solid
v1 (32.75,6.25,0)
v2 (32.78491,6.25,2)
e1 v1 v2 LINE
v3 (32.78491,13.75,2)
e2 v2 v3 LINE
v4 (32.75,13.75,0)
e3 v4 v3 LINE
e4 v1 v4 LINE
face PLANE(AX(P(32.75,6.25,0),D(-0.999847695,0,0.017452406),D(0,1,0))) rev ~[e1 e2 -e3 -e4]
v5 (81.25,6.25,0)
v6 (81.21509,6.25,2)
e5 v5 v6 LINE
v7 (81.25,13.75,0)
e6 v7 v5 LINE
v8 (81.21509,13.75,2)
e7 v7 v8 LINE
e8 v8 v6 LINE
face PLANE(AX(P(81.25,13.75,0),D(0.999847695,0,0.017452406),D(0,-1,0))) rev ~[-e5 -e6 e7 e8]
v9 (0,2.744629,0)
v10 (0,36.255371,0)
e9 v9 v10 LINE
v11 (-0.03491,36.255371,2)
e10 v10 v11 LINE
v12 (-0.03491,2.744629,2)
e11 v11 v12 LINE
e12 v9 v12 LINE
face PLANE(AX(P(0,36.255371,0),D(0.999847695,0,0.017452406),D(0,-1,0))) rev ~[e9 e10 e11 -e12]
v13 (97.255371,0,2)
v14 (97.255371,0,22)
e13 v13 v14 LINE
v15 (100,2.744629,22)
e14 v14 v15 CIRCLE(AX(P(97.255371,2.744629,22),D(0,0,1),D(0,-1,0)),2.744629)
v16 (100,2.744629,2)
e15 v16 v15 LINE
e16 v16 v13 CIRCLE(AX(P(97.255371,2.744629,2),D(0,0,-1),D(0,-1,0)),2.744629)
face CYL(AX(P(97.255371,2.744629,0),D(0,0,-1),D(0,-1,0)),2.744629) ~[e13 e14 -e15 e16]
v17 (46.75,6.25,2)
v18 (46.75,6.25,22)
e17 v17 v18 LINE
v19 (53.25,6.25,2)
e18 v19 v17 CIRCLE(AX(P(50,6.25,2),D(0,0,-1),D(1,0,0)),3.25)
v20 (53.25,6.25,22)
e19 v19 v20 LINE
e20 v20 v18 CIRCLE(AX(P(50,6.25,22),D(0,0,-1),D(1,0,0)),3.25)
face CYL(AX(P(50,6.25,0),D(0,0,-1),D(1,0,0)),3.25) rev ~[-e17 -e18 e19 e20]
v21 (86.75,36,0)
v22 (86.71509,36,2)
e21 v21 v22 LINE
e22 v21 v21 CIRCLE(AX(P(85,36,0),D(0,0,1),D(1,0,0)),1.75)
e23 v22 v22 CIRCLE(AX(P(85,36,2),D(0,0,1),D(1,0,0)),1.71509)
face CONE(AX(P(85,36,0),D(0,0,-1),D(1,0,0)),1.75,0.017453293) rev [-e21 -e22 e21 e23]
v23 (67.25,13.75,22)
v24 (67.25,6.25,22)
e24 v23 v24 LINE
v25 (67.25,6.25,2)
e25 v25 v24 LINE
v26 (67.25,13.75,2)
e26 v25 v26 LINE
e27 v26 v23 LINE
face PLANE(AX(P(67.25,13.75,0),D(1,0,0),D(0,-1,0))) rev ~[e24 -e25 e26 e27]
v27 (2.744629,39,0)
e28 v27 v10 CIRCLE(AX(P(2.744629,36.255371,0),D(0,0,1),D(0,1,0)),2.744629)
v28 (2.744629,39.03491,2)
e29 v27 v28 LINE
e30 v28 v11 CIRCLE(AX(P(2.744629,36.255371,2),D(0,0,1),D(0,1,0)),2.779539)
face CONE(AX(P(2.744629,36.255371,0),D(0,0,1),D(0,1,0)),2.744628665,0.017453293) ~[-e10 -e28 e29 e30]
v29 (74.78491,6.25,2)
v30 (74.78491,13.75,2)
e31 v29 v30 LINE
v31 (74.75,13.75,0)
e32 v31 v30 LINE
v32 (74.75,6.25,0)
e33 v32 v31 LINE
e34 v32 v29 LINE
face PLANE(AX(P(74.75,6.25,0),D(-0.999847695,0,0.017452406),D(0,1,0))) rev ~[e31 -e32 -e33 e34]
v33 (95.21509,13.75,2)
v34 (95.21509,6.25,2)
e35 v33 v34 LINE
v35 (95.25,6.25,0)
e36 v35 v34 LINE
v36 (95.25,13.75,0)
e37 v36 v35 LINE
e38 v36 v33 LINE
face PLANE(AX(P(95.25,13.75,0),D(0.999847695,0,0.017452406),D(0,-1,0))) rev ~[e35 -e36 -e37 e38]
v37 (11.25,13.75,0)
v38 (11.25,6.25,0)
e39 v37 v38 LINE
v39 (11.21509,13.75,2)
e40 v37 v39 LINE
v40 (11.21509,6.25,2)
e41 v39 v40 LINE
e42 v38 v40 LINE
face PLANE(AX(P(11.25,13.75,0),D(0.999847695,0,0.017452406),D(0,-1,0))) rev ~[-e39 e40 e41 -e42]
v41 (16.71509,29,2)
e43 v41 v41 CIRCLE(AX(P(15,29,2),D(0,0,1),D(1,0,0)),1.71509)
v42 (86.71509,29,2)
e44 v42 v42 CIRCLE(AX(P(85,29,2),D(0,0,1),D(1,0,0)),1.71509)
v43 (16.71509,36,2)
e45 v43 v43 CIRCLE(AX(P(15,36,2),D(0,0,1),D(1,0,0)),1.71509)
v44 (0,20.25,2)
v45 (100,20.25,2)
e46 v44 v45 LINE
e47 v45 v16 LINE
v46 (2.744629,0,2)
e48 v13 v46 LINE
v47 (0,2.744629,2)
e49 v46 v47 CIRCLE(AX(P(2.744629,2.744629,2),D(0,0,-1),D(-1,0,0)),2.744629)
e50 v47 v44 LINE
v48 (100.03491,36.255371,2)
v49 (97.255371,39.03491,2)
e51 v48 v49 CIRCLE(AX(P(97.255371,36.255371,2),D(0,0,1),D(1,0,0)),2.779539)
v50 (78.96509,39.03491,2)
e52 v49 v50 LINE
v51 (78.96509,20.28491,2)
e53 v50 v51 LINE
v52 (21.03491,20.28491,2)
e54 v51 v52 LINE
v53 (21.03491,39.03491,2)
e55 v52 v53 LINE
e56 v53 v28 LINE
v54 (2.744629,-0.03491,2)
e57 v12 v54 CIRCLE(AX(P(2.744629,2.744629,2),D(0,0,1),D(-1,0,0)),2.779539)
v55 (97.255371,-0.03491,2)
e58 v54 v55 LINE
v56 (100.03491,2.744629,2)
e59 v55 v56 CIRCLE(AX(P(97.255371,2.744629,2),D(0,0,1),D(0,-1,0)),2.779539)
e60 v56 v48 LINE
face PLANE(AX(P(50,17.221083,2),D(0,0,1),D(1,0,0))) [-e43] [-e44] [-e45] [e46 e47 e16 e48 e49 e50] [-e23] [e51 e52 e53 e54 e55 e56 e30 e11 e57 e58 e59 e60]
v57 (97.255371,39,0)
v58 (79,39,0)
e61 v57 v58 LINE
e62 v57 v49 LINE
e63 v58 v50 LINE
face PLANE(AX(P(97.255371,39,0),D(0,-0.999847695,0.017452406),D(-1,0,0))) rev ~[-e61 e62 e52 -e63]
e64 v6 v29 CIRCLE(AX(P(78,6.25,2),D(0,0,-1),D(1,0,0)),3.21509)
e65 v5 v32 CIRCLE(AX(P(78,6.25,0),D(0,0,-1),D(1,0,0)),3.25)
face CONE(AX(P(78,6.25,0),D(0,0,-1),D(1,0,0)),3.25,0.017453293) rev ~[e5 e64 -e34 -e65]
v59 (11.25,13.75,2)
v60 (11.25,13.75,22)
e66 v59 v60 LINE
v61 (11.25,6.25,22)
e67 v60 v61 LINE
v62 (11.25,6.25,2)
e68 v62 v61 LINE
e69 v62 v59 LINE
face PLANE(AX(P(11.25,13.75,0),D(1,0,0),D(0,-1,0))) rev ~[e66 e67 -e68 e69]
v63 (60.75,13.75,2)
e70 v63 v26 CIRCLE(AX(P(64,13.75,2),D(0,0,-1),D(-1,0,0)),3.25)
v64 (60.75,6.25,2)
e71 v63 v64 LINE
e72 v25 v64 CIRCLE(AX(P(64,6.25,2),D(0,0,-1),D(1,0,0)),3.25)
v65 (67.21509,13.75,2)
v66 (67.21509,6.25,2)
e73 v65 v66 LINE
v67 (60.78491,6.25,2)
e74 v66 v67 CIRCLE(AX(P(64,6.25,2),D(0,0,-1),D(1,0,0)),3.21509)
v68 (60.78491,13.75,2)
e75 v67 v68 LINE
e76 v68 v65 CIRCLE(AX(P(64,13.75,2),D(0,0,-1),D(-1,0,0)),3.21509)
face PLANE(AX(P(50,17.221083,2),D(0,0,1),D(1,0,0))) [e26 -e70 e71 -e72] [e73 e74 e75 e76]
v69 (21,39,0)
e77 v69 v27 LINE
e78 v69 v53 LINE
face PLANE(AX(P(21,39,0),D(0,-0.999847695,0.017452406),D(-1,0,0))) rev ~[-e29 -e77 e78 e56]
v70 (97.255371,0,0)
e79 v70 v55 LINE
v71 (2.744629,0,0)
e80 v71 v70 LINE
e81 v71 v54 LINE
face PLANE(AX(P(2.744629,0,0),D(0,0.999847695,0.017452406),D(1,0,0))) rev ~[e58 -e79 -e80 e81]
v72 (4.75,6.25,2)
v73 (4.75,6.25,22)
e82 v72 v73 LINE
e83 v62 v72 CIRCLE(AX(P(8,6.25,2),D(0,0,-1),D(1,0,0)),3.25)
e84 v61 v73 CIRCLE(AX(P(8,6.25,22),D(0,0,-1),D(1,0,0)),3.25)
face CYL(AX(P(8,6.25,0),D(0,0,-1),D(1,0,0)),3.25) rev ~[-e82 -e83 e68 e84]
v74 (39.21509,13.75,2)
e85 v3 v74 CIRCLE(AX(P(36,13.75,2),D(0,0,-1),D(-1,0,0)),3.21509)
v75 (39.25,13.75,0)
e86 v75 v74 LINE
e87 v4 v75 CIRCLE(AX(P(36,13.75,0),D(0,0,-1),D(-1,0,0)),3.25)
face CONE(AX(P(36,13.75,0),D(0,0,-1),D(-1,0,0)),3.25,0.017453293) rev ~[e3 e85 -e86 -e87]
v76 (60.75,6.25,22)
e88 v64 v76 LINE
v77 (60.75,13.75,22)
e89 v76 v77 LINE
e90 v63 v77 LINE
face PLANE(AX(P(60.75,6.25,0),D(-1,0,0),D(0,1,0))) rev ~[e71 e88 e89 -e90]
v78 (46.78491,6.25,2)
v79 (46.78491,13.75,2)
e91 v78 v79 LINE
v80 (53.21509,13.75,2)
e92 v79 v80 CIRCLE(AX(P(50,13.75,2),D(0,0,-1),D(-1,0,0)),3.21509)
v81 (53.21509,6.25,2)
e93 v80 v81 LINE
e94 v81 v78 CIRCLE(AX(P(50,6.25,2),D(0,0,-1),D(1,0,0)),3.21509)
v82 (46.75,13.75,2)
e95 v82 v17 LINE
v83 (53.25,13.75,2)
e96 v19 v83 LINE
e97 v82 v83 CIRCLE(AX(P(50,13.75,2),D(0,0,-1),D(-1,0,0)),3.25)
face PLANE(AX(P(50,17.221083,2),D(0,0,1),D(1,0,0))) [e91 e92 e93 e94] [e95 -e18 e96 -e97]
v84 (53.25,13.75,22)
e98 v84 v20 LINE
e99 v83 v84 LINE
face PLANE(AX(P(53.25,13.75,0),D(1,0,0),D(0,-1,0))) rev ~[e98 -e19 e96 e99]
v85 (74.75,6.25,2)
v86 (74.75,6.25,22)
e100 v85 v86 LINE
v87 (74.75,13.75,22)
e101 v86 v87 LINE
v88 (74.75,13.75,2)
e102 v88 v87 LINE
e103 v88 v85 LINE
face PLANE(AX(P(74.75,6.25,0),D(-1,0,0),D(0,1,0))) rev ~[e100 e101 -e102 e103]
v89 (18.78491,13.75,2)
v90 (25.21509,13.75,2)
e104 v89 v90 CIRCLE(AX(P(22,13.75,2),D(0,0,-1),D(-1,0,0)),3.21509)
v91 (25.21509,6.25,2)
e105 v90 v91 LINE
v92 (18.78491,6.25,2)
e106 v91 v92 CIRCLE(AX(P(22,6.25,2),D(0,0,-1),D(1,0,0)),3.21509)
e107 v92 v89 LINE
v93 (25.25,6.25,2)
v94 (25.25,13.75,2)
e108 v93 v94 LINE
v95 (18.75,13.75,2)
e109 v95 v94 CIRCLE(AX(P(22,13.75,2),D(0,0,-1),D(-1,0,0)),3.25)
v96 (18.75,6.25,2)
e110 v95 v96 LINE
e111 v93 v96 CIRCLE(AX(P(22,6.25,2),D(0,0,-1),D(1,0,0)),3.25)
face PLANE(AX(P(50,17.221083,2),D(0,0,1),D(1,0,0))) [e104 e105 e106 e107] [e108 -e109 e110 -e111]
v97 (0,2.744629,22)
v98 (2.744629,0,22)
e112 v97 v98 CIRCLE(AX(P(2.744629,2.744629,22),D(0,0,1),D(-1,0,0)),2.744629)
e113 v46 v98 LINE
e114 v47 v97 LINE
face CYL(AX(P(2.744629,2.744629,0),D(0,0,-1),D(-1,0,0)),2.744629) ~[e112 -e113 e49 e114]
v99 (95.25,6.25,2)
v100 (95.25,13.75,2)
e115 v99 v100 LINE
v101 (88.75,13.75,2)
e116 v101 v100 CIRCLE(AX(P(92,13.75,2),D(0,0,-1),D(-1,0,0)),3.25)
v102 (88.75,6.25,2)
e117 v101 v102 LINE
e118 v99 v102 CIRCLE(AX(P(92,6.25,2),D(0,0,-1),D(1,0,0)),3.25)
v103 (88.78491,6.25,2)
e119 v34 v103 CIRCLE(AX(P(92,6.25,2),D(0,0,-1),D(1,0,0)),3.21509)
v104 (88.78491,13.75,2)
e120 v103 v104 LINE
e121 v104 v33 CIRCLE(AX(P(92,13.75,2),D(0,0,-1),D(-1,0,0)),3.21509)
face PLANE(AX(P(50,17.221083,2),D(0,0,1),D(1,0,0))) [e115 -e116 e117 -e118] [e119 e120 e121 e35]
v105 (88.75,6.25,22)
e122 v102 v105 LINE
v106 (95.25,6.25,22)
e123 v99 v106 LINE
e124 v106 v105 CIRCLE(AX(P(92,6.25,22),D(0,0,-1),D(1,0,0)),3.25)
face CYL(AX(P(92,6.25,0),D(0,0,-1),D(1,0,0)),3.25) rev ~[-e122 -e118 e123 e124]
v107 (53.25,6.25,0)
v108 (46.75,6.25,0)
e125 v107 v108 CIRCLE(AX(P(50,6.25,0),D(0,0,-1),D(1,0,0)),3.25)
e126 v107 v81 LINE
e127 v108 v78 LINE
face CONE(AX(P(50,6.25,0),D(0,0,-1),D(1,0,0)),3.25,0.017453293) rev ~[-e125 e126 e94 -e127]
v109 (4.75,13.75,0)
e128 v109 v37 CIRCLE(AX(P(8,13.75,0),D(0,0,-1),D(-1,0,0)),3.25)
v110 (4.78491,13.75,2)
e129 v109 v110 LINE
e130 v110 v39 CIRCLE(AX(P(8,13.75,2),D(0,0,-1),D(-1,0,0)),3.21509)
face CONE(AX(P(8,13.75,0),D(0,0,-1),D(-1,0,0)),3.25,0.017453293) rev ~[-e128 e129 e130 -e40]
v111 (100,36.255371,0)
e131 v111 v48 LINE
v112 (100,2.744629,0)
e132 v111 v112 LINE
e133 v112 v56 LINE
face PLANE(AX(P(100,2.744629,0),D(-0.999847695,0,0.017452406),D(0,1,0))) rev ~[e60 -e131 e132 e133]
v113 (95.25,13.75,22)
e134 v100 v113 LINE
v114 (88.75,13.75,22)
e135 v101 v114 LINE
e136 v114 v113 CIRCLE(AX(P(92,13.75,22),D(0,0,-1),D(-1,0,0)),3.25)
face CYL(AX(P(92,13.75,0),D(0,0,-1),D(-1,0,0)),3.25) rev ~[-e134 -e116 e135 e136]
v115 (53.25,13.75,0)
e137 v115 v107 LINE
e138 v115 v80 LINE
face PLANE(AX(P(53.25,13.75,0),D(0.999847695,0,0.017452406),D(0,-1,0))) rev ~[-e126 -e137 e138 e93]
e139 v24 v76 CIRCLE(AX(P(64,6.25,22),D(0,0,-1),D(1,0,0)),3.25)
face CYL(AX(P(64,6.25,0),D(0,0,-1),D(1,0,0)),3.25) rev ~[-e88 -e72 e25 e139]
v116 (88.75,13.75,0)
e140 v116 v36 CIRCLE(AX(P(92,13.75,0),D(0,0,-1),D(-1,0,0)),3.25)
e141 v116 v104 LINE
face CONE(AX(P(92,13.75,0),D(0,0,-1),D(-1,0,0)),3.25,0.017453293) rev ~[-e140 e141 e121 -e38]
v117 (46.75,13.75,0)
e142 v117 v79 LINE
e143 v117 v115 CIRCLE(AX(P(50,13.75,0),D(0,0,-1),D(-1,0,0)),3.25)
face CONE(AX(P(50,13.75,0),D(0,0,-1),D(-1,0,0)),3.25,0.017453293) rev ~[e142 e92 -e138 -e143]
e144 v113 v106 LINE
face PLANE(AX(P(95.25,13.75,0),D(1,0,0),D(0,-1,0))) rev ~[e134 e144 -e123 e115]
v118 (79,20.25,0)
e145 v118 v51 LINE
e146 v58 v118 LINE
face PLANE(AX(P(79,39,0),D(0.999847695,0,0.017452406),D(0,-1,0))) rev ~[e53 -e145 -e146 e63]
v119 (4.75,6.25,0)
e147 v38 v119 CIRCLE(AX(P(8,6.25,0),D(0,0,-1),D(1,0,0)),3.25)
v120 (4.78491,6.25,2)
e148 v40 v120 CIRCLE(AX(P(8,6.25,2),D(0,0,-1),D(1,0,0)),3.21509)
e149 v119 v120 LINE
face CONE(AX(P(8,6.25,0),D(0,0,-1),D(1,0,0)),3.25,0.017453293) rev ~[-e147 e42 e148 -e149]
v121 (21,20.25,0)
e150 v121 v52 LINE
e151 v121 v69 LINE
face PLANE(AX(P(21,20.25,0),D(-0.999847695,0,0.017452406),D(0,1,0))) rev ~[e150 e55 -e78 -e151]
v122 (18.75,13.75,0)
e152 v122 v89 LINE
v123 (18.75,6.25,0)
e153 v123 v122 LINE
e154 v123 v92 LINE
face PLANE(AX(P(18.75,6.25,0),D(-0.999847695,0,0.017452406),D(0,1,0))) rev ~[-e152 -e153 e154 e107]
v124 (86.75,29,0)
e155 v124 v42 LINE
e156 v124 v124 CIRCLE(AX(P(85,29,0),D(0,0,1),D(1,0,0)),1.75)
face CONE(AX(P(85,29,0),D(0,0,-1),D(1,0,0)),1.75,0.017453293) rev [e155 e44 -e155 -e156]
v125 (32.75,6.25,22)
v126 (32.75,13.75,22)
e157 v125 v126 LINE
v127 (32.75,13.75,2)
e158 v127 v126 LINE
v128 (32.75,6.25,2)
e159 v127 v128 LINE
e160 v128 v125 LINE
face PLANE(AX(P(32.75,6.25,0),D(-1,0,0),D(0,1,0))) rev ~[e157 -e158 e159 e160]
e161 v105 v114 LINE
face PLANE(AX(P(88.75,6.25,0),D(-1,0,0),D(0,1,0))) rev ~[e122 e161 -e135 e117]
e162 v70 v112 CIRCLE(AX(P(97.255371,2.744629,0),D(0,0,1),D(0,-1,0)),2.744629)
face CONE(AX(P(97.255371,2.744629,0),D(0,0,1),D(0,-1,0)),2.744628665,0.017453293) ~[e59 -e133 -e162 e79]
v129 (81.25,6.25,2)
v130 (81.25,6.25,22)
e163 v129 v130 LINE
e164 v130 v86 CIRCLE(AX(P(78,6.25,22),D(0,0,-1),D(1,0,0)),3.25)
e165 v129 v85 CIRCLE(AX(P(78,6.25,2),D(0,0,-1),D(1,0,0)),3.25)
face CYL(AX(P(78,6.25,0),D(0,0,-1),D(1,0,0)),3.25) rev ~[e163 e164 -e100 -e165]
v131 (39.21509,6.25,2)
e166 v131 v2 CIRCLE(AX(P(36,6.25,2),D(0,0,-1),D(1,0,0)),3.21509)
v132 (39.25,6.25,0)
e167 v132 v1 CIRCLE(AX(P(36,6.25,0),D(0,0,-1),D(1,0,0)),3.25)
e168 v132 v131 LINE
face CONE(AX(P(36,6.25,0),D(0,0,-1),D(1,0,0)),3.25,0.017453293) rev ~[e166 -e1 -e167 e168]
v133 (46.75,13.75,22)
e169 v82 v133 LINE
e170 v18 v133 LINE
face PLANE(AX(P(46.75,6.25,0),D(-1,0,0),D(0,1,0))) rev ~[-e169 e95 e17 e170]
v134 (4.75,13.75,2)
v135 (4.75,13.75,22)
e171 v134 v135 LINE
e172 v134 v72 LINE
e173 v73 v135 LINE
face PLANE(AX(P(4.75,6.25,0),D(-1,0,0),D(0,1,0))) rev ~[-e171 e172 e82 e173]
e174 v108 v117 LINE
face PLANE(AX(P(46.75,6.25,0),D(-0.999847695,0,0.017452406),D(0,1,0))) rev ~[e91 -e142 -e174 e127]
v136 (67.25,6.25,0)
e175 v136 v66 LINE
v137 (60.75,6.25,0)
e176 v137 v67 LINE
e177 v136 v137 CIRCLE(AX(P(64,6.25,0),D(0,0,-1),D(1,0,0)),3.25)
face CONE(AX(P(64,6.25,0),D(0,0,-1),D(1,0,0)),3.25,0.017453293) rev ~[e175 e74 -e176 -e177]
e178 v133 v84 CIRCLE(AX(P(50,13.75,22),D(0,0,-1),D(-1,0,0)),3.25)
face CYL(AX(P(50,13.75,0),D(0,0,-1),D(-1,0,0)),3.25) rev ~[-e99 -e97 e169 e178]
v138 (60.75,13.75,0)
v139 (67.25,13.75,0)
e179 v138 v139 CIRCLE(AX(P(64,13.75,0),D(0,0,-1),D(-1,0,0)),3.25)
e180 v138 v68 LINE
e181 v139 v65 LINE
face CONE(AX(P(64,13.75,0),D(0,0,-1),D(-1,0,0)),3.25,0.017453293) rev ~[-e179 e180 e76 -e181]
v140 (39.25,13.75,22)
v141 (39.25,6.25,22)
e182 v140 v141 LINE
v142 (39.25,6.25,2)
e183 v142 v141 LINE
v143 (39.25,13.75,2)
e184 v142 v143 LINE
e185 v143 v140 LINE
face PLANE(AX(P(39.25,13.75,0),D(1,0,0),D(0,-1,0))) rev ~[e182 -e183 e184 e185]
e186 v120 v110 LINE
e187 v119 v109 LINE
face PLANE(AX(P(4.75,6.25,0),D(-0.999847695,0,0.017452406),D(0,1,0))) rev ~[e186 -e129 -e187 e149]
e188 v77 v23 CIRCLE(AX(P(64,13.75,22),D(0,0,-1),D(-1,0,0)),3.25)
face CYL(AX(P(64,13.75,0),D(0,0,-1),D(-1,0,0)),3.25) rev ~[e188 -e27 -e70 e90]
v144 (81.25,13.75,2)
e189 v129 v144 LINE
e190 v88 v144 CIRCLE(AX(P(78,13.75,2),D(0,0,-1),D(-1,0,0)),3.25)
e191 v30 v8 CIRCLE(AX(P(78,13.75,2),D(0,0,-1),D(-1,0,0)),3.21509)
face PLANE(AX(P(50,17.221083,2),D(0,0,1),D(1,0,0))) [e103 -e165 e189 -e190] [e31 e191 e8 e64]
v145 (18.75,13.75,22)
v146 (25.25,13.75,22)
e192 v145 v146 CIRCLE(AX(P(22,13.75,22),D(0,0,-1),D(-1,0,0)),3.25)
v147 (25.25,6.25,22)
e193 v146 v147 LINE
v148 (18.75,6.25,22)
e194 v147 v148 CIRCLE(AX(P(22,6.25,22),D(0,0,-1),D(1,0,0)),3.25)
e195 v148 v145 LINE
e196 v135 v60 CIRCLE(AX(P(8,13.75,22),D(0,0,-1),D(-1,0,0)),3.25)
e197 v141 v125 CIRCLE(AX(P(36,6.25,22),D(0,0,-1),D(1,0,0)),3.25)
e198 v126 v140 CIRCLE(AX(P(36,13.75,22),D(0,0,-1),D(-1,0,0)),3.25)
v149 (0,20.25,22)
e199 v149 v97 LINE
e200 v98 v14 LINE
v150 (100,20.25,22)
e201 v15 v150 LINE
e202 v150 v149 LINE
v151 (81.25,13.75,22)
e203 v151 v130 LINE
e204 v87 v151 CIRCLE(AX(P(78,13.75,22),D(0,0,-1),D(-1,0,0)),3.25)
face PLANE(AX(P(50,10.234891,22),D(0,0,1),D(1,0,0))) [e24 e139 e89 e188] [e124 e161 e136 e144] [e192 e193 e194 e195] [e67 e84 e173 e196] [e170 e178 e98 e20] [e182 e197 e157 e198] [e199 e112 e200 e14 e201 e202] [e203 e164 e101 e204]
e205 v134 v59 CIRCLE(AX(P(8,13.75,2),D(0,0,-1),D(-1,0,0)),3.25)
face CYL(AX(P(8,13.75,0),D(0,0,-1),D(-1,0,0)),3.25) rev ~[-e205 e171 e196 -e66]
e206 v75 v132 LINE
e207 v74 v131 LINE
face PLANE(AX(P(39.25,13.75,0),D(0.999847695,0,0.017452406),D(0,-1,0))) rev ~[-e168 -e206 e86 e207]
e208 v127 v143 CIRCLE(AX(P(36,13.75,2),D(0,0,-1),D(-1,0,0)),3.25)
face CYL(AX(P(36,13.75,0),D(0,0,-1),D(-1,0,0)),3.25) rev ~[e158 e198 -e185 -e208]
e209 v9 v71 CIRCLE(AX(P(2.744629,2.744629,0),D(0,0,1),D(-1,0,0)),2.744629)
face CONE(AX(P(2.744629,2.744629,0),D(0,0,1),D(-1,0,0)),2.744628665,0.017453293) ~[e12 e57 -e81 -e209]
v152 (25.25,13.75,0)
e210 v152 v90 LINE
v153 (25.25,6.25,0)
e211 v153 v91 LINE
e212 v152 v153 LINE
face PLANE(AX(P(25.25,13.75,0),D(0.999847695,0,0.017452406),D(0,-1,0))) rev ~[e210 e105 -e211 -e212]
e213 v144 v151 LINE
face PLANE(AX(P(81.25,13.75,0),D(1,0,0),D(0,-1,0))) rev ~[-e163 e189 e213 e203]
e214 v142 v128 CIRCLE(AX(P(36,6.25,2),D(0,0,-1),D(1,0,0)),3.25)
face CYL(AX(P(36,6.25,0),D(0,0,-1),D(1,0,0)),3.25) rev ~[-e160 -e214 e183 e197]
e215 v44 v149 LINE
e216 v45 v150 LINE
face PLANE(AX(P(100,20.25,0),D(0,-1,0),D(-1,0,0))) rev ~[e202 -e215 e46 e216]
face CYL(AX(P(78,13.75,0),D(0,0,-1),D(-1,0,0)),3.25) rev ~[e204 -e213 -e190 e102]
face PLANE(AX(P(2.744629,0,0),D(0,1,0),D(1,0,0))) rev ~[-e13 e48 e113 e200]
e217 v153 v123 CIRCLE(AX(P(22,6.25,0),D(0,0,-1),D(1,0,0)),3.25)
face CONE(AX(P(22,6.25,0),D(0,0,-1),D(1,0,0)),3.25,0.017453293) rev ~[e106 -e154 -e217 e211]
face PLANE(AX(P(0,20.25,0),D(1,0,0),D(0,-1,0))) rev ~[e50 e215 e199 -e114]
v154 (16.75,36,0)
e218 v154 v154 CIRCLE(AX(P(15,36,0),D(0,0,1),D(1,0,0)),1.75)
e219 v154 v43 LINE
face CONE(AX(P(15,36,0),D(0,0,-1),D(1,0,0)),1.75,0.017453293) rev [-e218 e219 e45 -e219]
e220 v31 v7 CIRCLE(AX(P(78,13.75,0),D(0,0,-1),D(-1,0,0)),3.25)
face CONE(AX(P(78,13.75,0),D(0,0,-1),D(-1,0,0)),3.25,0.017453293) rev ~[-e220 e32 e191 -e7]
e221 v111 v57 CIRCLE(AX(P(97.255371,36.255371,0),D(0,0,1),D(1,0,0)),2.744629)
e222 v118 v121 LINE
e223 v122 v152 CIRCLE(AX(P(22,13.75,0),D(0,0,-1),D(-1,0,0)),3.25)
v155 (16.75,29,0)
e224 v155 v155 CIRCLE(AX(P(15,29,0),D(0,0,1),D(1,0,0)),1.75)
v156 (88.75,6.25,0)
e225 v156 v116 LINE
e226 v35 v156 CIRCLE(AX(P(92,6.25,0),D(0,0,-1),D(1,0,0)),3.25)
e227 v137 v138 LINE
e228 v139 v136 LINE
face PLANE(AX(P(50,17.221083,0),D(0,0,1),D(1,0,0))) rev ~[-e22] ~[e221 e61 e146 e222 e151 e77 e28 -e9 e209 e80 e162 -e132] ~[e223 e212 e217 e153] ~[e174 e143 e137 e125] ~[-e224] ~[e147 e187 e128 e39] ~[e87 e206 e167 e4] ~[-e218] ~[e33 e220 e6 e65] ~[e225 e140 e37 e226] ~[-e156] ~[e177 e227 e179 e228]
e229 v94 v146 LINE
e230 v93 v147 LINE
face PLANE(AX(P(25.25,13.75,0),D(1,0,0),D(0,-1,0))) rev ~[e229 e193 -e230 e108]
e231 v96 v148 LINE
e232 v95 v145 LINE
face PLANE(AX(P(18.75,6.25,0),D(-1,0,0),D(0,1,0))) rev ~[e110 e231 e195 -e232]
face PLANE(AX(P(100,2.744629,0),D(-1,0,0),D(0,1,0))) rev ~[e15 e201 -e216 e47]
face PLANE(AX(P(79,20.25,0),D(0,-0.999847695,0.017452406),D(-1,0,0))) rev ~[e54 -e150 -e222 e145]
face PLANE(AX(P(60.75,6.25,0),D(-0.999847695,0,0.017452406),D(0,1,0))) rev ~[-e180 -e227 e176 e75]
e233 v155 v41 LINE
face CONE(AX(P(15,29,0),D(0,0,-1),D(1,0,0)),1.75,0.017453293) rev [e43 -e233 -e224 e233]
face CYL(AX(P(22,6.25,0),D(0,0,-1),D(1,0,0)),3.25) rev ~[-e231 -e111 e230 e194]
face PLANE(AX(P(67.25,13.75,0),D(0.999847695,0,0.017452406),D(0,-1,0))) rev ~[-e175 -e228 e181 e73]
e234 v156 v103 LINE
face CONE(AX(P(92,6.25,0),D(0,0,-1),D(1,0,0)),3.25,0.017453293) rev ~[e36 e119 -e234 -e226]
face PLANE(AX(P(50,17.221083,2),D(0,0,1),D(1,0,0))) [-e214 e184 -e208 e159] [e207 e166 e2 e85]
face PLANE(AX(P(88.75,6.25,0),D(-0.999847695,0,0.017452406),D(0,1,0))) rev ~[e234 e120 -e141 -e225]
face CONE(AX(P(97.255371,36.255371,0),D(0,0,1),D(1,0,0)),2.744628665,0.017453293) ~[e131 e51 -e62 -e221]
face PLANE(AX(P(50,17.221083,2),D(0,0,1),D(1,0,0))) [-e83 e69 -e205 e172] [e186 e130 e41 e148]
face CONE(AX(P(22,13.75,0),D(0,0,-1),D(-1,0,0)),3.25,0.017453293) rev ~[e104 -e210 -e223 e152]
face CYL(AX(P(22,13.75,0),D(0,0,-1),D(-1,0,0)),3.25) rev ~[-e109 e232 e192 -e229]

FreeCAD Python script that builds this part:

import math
import FreeCAD as App
import Part
import Sketcher
from FreeCAD import Vector
Q = App.Units.Quantity


def faces_at(feature, points):
    """Names of the faces that lie closest to the given points."""
    faces = feature.Shape.Faces
    near = lambda p: min(range(len(faces)), key=lambda i: faces[i].distToShape(Part.Vertex(*p))[0])
    return sorted({f"Face{near(p) + 1}" for p in points})

doc = App.newDocument("Part")
body = doc.addObject("PartDesign::Body", "Body")

# Sketch on XY plane
sketch1 = body.newObject("Sketcher::SketchObject", "Sketch")
sketch1.AttachmentSupport = (doc.getObject("XY_Plane"), [""])
sketch1.MapMode = "FlatFace"
sketch1.addGeometry([
    Part.ArcOfCircle(Part.Circle(Vector(2.7, 2.7, 0), Vector(0, 0, 1), 2.7), math.radians(180), math.radians(270)),  # 0
    Part.LineSegment(Vector(2.7, 0, 0), Vector(97.3, 0, 0)),  # 1
    Part.ArcOfCircle(Part.Circle(Vector(97.3, 2.7, 0), Vector(0, 0, 1), 2.7), math.radians(-90), math.radians(0)),  # 2
    Part.LineSegment(Vector(100, 2.7, 0), Vector(100, 36.3, 0)),  # 3
    Part.ArcOfCircle(Part.Circle(Vector(97.3, 36.3, 0), Vector(0, 0, 1), 2.7), math.radians(0), math.radians(90)),  # 4
    Part.LineSegment(Vector(97.3, 39, 0), Vector(79, 39, 0)),  # 5
    Part.LineSegment(Vector(79, 39, 0), Vector(79, 20.2, 0)),  # 6
    Part.LineSegment(Vector(79, 20.2, 0), Vector(21, 20.2, 0)),  # 7
    Part.LineSegment(Vector(21, 20.2, 0), Vector(21, 39, 0)),  # 8
    Part.LineSegment(Vector(21, 39, 0), Vector(2.7, 39, 0)),  # 9
    Part.ArcOfCircle(Part.Circle(Vector(2.7, 36.3, 0), Vector(0, 0, 1), 2.7), math.radians(90), math.radians(180)),  # 10
    Part.LineSegment(Vector(0, 36.3, 0), Vector(0, 2.7, 0)),  # 11
    Part.LineSegment(Vector(11.2, 13.8, 0), Vector(11.2, 6.2, 0)),  # 12
    Part.ArcOfCircle(Part.Circle(Vector(8, 6.2, 0), Vector(0, 0, 1), 3.2), math.radians(180), math.radians(360)),  # 13
    Part.LineSegment(Vector(4.8, 6.2, 0), Vector(4.8, 13.8, 0)),  # 14
    Part.ArcOfCircle(Part.Circle(Vector(8, 13.8, 0), Vector(0, 0, 1), 3.2), math.radians(0), math.radians(180)),  # 15
    Part.LineSegment(Vector(25.2, 13.8, 0), Vector(25.2, 6.2, 0)),  # 16
    Part.ArcOfCircle(Part.Circle(Vector(22, 6.2, 0), Vector(0, 0, 1), 3.2), math.radians(180), math.radians(360)),  # 17
    Part.LineSegment(Vector(18.8, 6.2, 0), Vector(18.8, 13.8, 0)),  # 18
    Part.ArcOfCircle(Part.Circle(Vector(22, 13.8, 0), Vector(0, 0, 1), 3.2), math.radians(0), math.radians(180)),  # 19
    Part.LineSegment(Vector(39.2, 13.8, 0), Vector(39.2, 6.2, 0)),  # 20
    Part.ArcOfCircle(Part.Circle(Vector(36, 6.2, 0), Vector(0, 0, 1), 3.2), math.radians(180), math.radians(360)),  # 21
    Part.LineSegment(Vector(32.8, 6.2, 0), Vector(32.8, 13.8, 0)),  # 22
    Part.ArcOfCircle(Part.Circle(Vector(36, 13.8, 0), Vector(0, 0, 1), 3.2), math.radians(0), math.radians(180)),  # 23
    Part.LineSegment(Vector(53.2, 13.8, 0), Vector(53.2, 6.2, 0)),  # 24
    Part.ArcOfCircle(Part.Circle(Vector(50, 6.2, 0), Vector(0, 0, 1), 3.2), math.radians(180), math.radians(360)),  # 25
    Part.LineSegment(Vector(46.8, 6.2, 0), Vector(46.8, 13.8, 0)),  # 26
    Part.ArcOfCircle(Part.Circle(Vector(50, 13.8, 0), Vector(0, 0, 1), 3.2), math.radians(0), math.radians(180)),  # 27
    Part.LineSegment(Vector(67.2, 13.8, 0), Vector(67.2, 6.2, 0)),  # 28
    Part.ArcOfCircle(Part.Circle(Vector(64, 6.2, 0), Vector(0, 0, 1), 3.2), math.radians(180), math.radians(360)),  # 29
    Part.LineSegment(Vector(60.8, 6.2, 0), Vector(60.8, 13.8, 0)),  # 30
    Part.ArcOfCircle(Part.Circle(Vector(64, 13.8, 0), Vector(0, 0, 1), 3.2), math.radians(0), math.radians(180)),  # 31
    Part.LineSegment(Vector(81.2, 13.8, 0), Vector(81.2, 6.2, 0)),  # 32
    Part.ArcOfCircle(Part.Circle(Vector(78, 6.2, 0), Vector(0, 0, 1), 3.2), math.radians(180), math.radians(360)),  # 33
    Part.LineSegment(Vector(74.8, 6.2, 0), Vector(74.8, 13.8, 0)),  # 34
    Part.ArcOfCircle(Part.Circle(Vector(78, 13.8, 0), Vector(0, 0, 1), 3.2), math.radians(0), math.radians(180)),  # 35
    Part.LineSegment(Vector(95.2, 13.8, 0), Vector(95.2, 6.2, 0)),  # 36
    Part.ArcOfCircle(Part.Circle(Vector(92, 6.2, 0), Vector(0, 0, 1), 3.2), math.radians(180), math.radians(360)),  # 37
    Part.LineSegment(Vector(88.8, 6.2, 0), Vector(88.8, 13.8, 0)),  # 38
    Part.ArcOfCircle(Part.Circle(Vector(92, 13.8, 0), Vector(0, 0, 1), 3.2), math.radians(0), math.radians(180)),  # 39
    Part.Circle(Vector(15, 29, 0), Vector(0, 0, 1), 1.8),  # 40
    Part.Circle(Vector(15, 36, 0), Vector(0, 0, 1), 1.8),  # 41
    Part.Circle(Vector(85, 29, 0), Vector(0, 0, 1), 1.8),  # 42
    Part.Circle(Vector(85, 36, 0), Vector(0, 0, 1), 1.8),  # 43
], False)
sketch1.addConstraint([
    Sketcher.Constraint("Tangent", 0, 2, 1, 1),
    Sketcher.Constraint("Tangent", 1, 2, 2, 1),
    Sketcher.Constraint("Tangent", 2, 2, 3, 1),
    Sketcher.Constraint("Tangent", 3, 2, 4, 1),
    Sketcher.Constraint("Tangent", 4, 2, 5, 1),
    Sketcher.Constraint("Coincident", 5, 2, 6, 1),
    Sketcher.Constraint("Coincident", 6, 2, 7, 1),
    Sketcher.Constraint("Coincident", 7, 2, 8, 1),
    Sketcher.Constraint("Coincident", 8, 2, 9, 1),
    Sketcher.Constraint("Tangent", 9, 2, 10, 1),
    Sketcher.Constraint("Tangent", 10, 2, 11, 1),
    Sketcher.Constraint("Tangent", 11, 2, 0, 1),
    Sketcher.Constraint("Tangent", 12, 2, 13, 2),
    Sketcher.Constraint("Tangent", 13, 1, 14, 1),
    Sketcher.Constraint("Tangent", 14, 2, 15, 2),
    Sketcher.Constraint("Tangent", 15, 1, 12, 1),
    Sketcher.Constraint("Tangent", 16, 2, 17, 2),
    Sketcher.Constraint("Tangent", 17, 1, 18, 1),
    Sketcher.Constraint("Tangent", 18, 2, 19, 2),
    Sketcher.Constraint("Tangent", 19, 1, 16, 1),
    Sketcher.Constraint("Tangent", 20, 2, 21, 2),
    Sketcher.Constraint("Tangent", 21, 1, 22, 1),
    Sketcher.Constraint("Tangent", 22, 2, 23, 2),
    Sketcher.Constraint("Tangent", 23, 1, 20, 1),
    Sketcher.Constraint("Tangent", 24, 2, 25, 2),
    Sketcher.Constraint("Tangent", 25, 1, 26, 1),
    Sketcher.Constraint("Tangent", 26, 2, 27, 2),
    Sketcher.Constraint("Tangent", 27, 1, 24, 1),
    Sketcher.Constraint("Tangent", 28, 2, 29, 2),
    Sketcher.Constraint("Tangent", 29, 1, 30, 1),
    Sketcher.Constraint("Tangent", 30, 2, 31, 2),
    Sketcher.Constraint("Tangent", 31, 1, 28, 1),
    Sketcher.Constraint("Tangent", 32, 2, 33, 2),
    Sketcher.Constraint("Tangent", 33, 1, 34, 1),
    Sketcher.Constraint("Tangent", 34, 2, 35, 2),
    Sketcher.Constraint("Tangent", 35, 1, 32, 1),
    Sketcher.Constraint("Tangent", 36, 2, 37, 2),
    Sketcher.Constraint("Tangent", 37, 1, 38, 1),
    Sketcher.Constraint("Tangent", 38, 2, 39, 2),
    Sketcher.Constraint("Tangent", 39, 1, 36, 1),
    Sketcher.Constraint("Horizontal", 1),
    Sketcher.Constraint("Vertical", 3),
    Sketcher.Constraint("Horizontal", 5),
    Sketcher.Constraint("Vertical", 6),
    Sketcher.Constraint("Horizontal", 7),
    Sketcher.Constraint("Vertical", 8),
    Sketcher.Constraint("Horizontal", 9),
    Sketcher.Constraint("Vertical", 11),
    Sketcher.Constraint("Vertical", 12),
    Sketcher.Constraint("Vertical", 14),
    Sketcher.Constraint("Vertical", 16),
    Sketcher.Constraint("Vertical", 18),
    Sketcher.Constraint("Vertical", 20),
    Sketcher.Constraint("Vertical", 22),
    Sketcher.Constraint("Vertical", 24),
    Sketcher.Constraint("Vertical", 26),
    Sketcher.Constraint("Vertical", 28),
    Sketcher.Constraint("Vertical", 30),
    Sketcher.Constraint("Vertical", 32),
    Sketcher.Constraint("Vertical", 34),
    Sketcher.Constraint("Vertical", 36),
    Sketcher.Constraint("Vertical", 38),
    Sketcher.Constraint("Equal", 0, 2),
    Sketcher.Constraint("Equal", 2, 4),
    Sketcher.Constraint("Equal", 4, 10),
    Sketcher.Constraint("Equal", 15, 17),
    Sketcher.Constraint("Equal", 19, 21),
    Sketcher.Constraint("Equal", 23, 25),
    Sketcher.Constraint("Equal", 27, 29),
    Sketcher.Constraint("Equal", 31, 33),
    Sketcher.Constraint("Equal", 35, 37),
    Sketcher.Constraint("Equal", 40, 41),
    Sketcher.Constraint("Equal", 41, 42),
    Sketcher.Constraint("Equal", 42, 43),
    Sketcher.Constraint("PointOnObject", 0, 2, -1),
    Sketcher.Constraint("PointOnObject", 10, 2, -2),
    Sketcher.Constraint("Horizontal", 4, 3, 10, 3),
    Sketcher.Constraint("Horizontal", 13, 3, 17, 3),
    Sketcher.Constraint("Horizontal", 15, 3, 19, 3),
    Sketcher.Constraint("Horizontal", 17, 3, 21, 3),
    Sketcher.Constraint("Horizontal", 19, 3, 23, 3),
    Sketcher.Constraint("Horizontal", 21, 3, 25, 3),
    Sketcher.Constraint("Horizontal", 23, 3, 27, 3),
    Sketcher.Constraint("Horizontal", 25, 3, 29, 3),
    Sketcher.Constraint("Horizontal", 27, 3, 31, 3),
    Sketcher.Constraint("Horizontal", 29, 3, 33, 3),
    Sketcher.Constraint("Horizontal", 31, 3, 35, 3),
    Sketcher.Constraint("Horizontal", 33, 3, 37, 3),
    Sketcher.Constraint("Horizontal", 35, 3, 39, 3),
    Sketcher.Constraint("Horizontal", 40, 3, 42, 3),
    Sketcher.Constraint("Horizontal", 41, 3, 43, 3),
    Sketcher.Constraint("Vertical", 40, 3, 41, 3),
    Sketcher.Constraint("Vertical", 42, 3, 43, 3),
    Sketcher.Constraint("Equal", 5, 9),
    Sketcher.Constraint("Diameter", 40, Q("3.5 mm")),
    Sketcher.Constraint("DistanceX", 7, 2, 7, 1, Q("58 mm")),
    Sketcher.Constraint("Radius", 13, Q("3.25 mm")),
    Sketcher.Constraint("DistanceY", 12, 2, 12, 1, Q("7.5 mm")),
    Sketcher.Constraint("DistanceX", -1, 1, 13, 3, Q("8 mm")),
    Sketcher.Constraint("DistanceX", -1, 1, 17, 3, Q("22 mm")),
    Sketcher.Constraint("DistanceX", -1, 1, 21, 3, Q("36 mm")),
    Sketcher.Constraint("DistanceX", -1, 1, 25, 3, Q("50 mm")),
    Sketcher.Constraint("DistanceX", -1, 1, 29, 3, Q("64 mm")),
    Sketcher.Constraint("DistanceX", -1, 1, 33, 3, Q("78 mm")),
    Sketcher.Constraint("DistanceX", -1, 1, 37, 3, Q("92 mm")),
    Sketcher.Constraint("DistanceX", -1, 1, 40, 3, Q("15 mm")),
    Sketcher.Constraint("DistanceY", -1, 1, 40, 3, Q("29 mm")),
    Sketcher.Constraint("DistanceY", -1, 1, 41, 3, Q("36 mm")),
    Sketcher.Constraint("DistanceX", -1, 1, 42, 3, Q("85 mm")),
    Sketcher.Constraint("DistanceX", -1, 1, 2, 2, Q("100 mm")),
    Sketcher.Constraint("DistanceY", -1, 1, 4, 2, Q("39 mm")),
    Sketcher.Constraint("DistanceY", 6, 2, 6, 1, Q("18.75 mm")),
    Sketcher.Constraint("DistanceY", -1, 1, 13, 3, Q("6.25 mm")),
    Sketcher.Constraint("Radius", 0, Q("2.744629 mm")),
])
pad1 = body.newObject("PartDesign::Pad", "Pad")
pad1.Profile = sketch1
pad1.Length = 2
doc.recompute()

draft = body.newObject("PartDesign::Draft", "Draft")
draft.Base = (pad1, faces_at(pad1, [
    (21, 29.625, 1),
    (11.872, 39, 1),
    (0.804, 38.196, 1),
    (0, 19.5, 1),
    (0.804, 0.804, 1),
    (50, 0, 1),
    (99.196, 0.804, 1),
    (100, 19.5, 1),
    (99.196, 38.196, 1),
    (88.128, 39, 1),
    (79, 29.625, 1),
    (50, 20.25, 1),
    (4.75, 10, 1),
    (8, 17, 1),
    (11.25, 10, 1),
    (8, 3, 1),
    (22, 17, 1),
    (25.25, 10, 1),
    (22, 3, 1),
    (18.75, 10, 1),
    (32.75, 10, 1),
    (36, 17, 1),
    (39.25, 10, 1),
    (36, 3, 1),
    (50, 3, 1),
    (46.75, 10, 1),
    (50, 17, 1),
    (53.25, 10, 1),
    (64, 17, 1),
    (67.25, 10, 1),
    (64, 3, 1),
    (60.75, 10, 1),
    (78, 17, 1),
    (81.25, 10, 1),
    (78, 3, 1),
    (74.75, 10, 1),
    (92, 17, 1),
    (95.25, 10, 1),
    (92, 3, 1),
    (88.75, 10, 1),
    (13.25, 29, 1),
    (83.25, 29, 1),
    (13.25, 36, 1),
    (83.25, 36, 1),
]))
draft.NeutralPlane = (doc.getObject("XY_Plane"), [""])
draft.Angle = 1
draft.Reversed = True

# Sketch on XY plane
sketch2 = body.newObject("Sketcher::SketchObject", "Sketch001")
sketch2.AttachmentSupport = (doc.getObject("XY_Plane"), [""])
sketch2.MapMode = "FlatFace"
sketch2.addGeometry([
    Part.ArcOfCircle(Part.Circle(Vector(2.7, 2.7, 0), Vector(0, 0, 1), 2.7), math.radians(180), math.radians(270)),  # 0
    Part.LineSegment(Vector(2.7, 0, 0), Vector(97.3, 0, 0)),  # 1
    Part.ArcOfCircle(Part.Circle(Vector(97.3, 2.7, 0), Vector(0, 0, 1), 2.7), math.radians(-90), math.radians(0)),  # 2
    Part.LineSegment(Vector(100, 2.7, 0), Vector(100, 20.2, 0)),  # 3
    Part.LineSegment(Vector(100, 20.2, 0), Vector(0, 20.2, 0)),  # 4
    Part.LineSegment(Vector(0, 20.2, 0), Vector(0, 2.7, 0)),  # 5
    Part.LineSegment(Vector(11.2, 13.8, 0), Vector(11.2, 6.2, 0)),  # 6
    Part.ArcOfCircle(Part.Circle(Vector(8, 6.2, 0), Vector(0, 0, 1), 3.2), math.radians(180), math.radians(360)),  # 7
    Part.LineSegment(Vector(4.8, 6.2, 0), Vector(4.8, 13.8, 0)),  # 8
    Part.ArcOfCircle(Part.Circle(Vector(8, 13.8, 0), Vector(0, 0, 1), 3.2), math.radians(0), math.radians(180)),  # 9
    Part.LineSegment(Vector(25.2, 13.8, 0), Vector(25.2, 6.2, 0)),  # 10
    Part.ArcOfCircle(Part.Circle(Vector(22, 6.2, 0), Vector(0, 0, 1), 3.2), math.radians(180), math.radians(360)),  # 11
    Part.LineSegment(Vector(18.8, 6.2, 0), Vector(18.8, 13.8, 0)),  # 12
    Part.ArcOfCircle(Part.Circle(Vector(22, 13.8, 0), Vector(0, 0, 1), 3.2), math.radians(0), math.radians(180)),  # 13
    Part.LineSegment(Vector(39.2, 13.8, 0), Vector(39.2, 6.2, 0)),  # 14
    Part.ArcOfCircle(Part.Circle(Vector(36, 6.2, 0), Vector(0, 0, 1), 3.2), math.radians(180), math.radians(360)),  # 15
    Part.LineSegment(Vector(32.8, 6.2, 0), Vector(32.8, 13.8, 0)),  # 16
    Part.ArcOfCircle(Part.Circle(Vector(36, 13.8, 0), Vector(0, 0, 1), 3.2), math.radians(0), math.radians(180)),  # 17
    Part.LineSegment(Vector(53.2, 13.8, 0), Vector(53.2, 6.2, 0)),  # 18
    Part.ArcOfCircle(Part.Circle(Vector(50, 6.2, 0), Vector(0, 0, 1), 3.2), math.radians(180), math.radians(360)),  # 19
    Part.LineSegment(Vector(46.8, 6.2, 0), Vector(46.8, 13.8, 0)),  # 20
    Part.ArcOfCircle(Part.Circle(Vector(50, 13.8, 0), Vector(0, 0, 1), 3.2), math.radians(0), math.radians(180)),  # 21
    Part.LineSegment(Vector(67.2, 13.8, 0), Vector(67.2, 6.2, 0)),  # 22
    Part.ArcOfCircle(Part.Circle(Vector(64, 6.2, 0), Vector(0, 0, 1), 3.2), math.radians(180), math.radians(360)),  # 23
    Part.LineSegment(Vector(60.8, 6.2, 0), Vector(60.8, 13.8, 0)),  # 24
    Part.ArcOfCircle(Part.Circle(Vector(64, 13.8, 0), Vector(0, 0, 1), 3.2), math.radians(0), math.radians(180)),  # 25
    Part.LineSegment(Vector(81.2, 13.8, 0), Vector(81.2, 6.2, 0)),  # 26
    Part.ArcOfCircle(Part.Circle(Vector(78, 6.2, 0), Vector(0, 0, 1), 3.2), math.radians(180), math.radians(360)),  # 27
    Part.LineSegment(Vector(74.8, 6.2, 0), Vector(74.8, 13.8, 0)),  # 28
    Part.ArcOfCircle(Part.Circle(Vector(78, 13.8, 0), Vector(0, 0, 1), 3.2), math.radians(0), math.radians(180)),  # 29
    Part.LineSegment(Vector(95.2, 13.8, 0), Vector(95.2, 6.2, 0)),  # 30
    Part.ArcOfCircle(Part.Circle(Vector(92, 6.2, 0), Vector(0, 0, 1), 3.2), math.radians(180), math.radians(360)),  # 31
    Part.LineSegment(Vector(88.8, 6.2, 0), Vector(88.8, 13.8, 0)),  # 32
    Part.ArcOfCircle(Part.Circle(Vector(92, 13.8, 0), Vector(0, 0, 1), 3.2), math.radians(0), math.radians(180)),  # 33
], False)
sketch2.addConstraint([
    Sketcher.Constraint("Tangent", 0, 2, 1, 1),
    Sketcher.Constraint("Tangent", 1, 2, 2, 1),
    Sketcher.Constraint("Tangent", 2, 2, 3, 1),
    Sketcher.Constraint("Coincident", 3, 2, 4, 1),
    Sketcher.Constraint("Coincident", 4, 2, 5, 1),
    Sketcher.Constraint("Tangent", 5, 2, 0, 1),
    Sketcher.Constraint("Tangent", 6, 2, 7, 2),
    Sketcher.Constraint("Tangent", 7, 1, 8, 1),
    Sketcher.Constraint("Tangent", 8, 2, 9, 2),
    Sketcher.Constraint("Tangent", 9, 1, 6, 1),
    Sketcher.Constraint("Tangent", 10, 2, 11, 2),
    Sketcher.Constraint("Tangent", 11, 1, 12, 1),
    Sketcher.Constraint("Tangent", 12, 2, 13, 2),
    Sketcher.Constraint("Tangent", 13, 1, 10, 1),
    Sketcher.Constraint("Tangent", 14, 2, 15, 2),
    Sketcher.Constraint("Tangent", 15, 1, 16, 1),
    Sketcher.Constraint("Tangent", 16, 2, 17, 2),
    Sketcher.Constraint("Tangent", 17, 1, 14, 1),
    Sketcher.Constraint("Tangent", 18, 2, 19, 2),
    Sketcher.Constraint("Tangent", 19, 1, 20, 1),
    Sketcher.Constraint("Tangent", 20, 2, 21, 2),
    Sketcher.Constraint("Tangent", 21, 1, 18, 1),
    Sketcher.Constraint("Tangent", 22, 2, 23, 2),
    Sketcher.Constraint("Tangent", 23, 1, 24, 1),
    Sketcher.Constraint("Tangent", 24, 2, 25, 2),
    Sketcher.Constraint("Tangent", 25, 1, 22, 1),
    Sketcher.Constraint("Tangent", 26, 2, 27, 2),
    Sketcher.Constraint("Tangent", 27, 1, 28, 1),
    Sketcher.Constraint("Tangent", 28, 2, 29, 2),
    Sketcher.Constraint("Tangent", 29, 1, 26, 1),
    Sketcher.Constraint("Tangent", 30, 2, 31, 2),
    Sketcher.Constraint("Tangent", 31, 1, 32, 1),
    Sketcher.Constraint("Tangent", 32, 2, 33, 2),
    Sketcher.Constraint("Tangent", 33, 1, 30, 1),
    Sketcher.Constraint("Horizontal", 1),
    Sketcher.Constraint("Vertical", 3),
    Sketcher.Constraint("Horizontal", 4),
    Sketcher.Constraint("Vertical", 5),
    Sketcher.Constraint("Vertical", 6),
    Sketcher.Constraint("Vertical", 8),
    Sketcher.Constraint("Vertical", 10),
    Sketcher.Constraint("Vertical", 12),
    Sketcher.Constraint("Vertical", 14),
    Sketcher.Constraint("Vertical", 16),
    Sketcher.Constraint("Vertical", 18),
    Sketcher.Constraint("Vertical", 20),
    Sketcher.Constraint("Vertical", 22),
    Sketcher.Constraint("Vertical", 24),
    Sketcher.Constraint("Vertical", 26),
    Sketcher.Constraint("Vertical", 28),
    Sketcher.Constraint("Vertical", 30),
    Sketcher.Constraint("Vertical", 32),
    Sketcher.Constraint("Equal", 0, 2),
    Sketcher.Constraint("Equal", 9, 11),
    Sketcher.Constraint("Equal", 13, 15),
    Sketcher.Constraint("Equal", 17, 19),
    Sketcher.Constraint("Equal", 21, 23),
    Sketcher.Constraint("Equal", 25, 27),
    Sketcher.Constraint("Equal", 29, 31),
    Sketcher.Constraint("PointOnObject", 0, 2, -1),
    Sketcher.Constraint("PointOnObject", 4, 2, -2),
    Sketcher.Constraint("Horizontal", 7, 3, 11, 3),
    Sketcher.Constraint("Horizontal", 9, 3, 13, 3),
    Sketcher.Constraint("Horizontal", 11, 3, 15, 3),
    Sketcher.Constraint("Horizontal", 13, 3, 17, 3),
    Sketcher.Constraint("Horizontal", 15, 3, 19, 3),
    Sketcher.Constraint("Horizontal", 17, 3, 21, 3),
    Sketcher.Constraint("Horizontal", 19, 3, 23, 3),
    Sketcher.Constraint("Horizontal", 21, 3, 25, 3),
    Sketcher.Constraint("Horizontal", 23, 3, 27, 3),
    Sketcher.Constraint("Horizontal", 25, 3, 29, 3),
    Sketcher.Constraint("Horizontal", 27, 3, 31, 3),
    Sketcher.Constraint("Horizontal", 29, 3, 33, 3),
    Sketcher.Constraint("DistanceX", 4, 2, 4, 1, Q("100 mm")),
    Sketcher.Constraint("Radius", 7, Q("3.25 mm")),
    Sketcher.Constraint("DistanceY", 6, 2, 6, 1, Q("7.5 mm")),
    Sketcher.Constraint("DistanceX", -1, 1, 7, 3, Q("8 mm")),
    Sketcher.Constraint("DistanceX", -1, 1, 11, 3, Q("22 mm")),
    Sketcher.Constraint("DistanceX", -1, 1, 15, 3, Q("36 mm")),
    Sketcher.Constraint("DistanceX", -1, 1, 19, 3, Q("50 mm")),
    Sketcher.Constraint("DistanceX", -1, 1, 23, 3, Q("64 mm")),
    Sketcher.Constraint("DistanceX", -1, 1, 27, 3, Q("78 mm")),
    Sketcher.Constraint("DistanceX", -1, 1, 31, 3, Q("92 mm")),
    Sketcher.Constraint("DistanceY", 31, 3, 3, 2, Q("14 mm")),
    Sketcher.Constraint("DistanceY", -1, 1, 7, 3, Q("6.25 mm")),
    Sketcher.Constraint("Radius", 0, Q("2.744629 mm")),
])
pad2 = body.newObject("PartDesign::Pad", "Pad001")
pad2.Profile = sketch2
pad2.Length = 22

doc.recompute()
